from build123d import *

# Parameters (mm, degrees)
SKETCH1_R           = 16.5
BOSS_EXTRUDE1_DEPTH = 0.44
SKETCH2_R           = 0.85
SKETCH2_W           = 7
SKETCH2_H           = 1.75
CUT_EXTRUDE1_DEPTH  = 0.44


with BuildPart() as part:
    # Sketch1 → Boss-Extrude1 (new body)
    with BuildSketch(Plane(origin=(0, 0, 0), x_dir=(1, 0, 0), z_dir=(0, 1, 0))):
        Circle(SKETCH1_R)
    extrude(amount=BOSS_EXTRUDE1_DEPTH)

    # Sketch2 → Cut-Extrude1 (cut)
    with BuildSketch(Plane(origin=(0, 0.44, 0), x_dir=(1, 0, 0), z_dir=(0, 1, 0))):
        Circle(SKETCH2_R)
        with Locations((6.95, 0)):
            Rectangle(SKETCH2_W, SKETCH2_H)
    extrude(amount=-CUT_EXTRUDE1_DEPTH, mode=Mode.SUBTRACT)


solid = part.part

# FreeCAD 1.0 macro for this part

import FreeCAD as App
import Part
import Sketcher

V = App.Vector
Q = App.Units.Quantity

doc = App.newDocument("Part")
body = doc.addObject("PartDesign::Body", "Body")

# Sketch on XZ plane
sketch1 = doc.addObject("Sketcher::SketchObject", "Sketch")
body.addObject(sketch1)
sketch1.AttachmentSupport = (doc.XZ_Plane, [""])
sketch1.MapMode = "FlatFace"
sketch1.addGeometry(Part.Circle(V(0, 0, 0), V(0, 0, 1), 16), False)
sketch1.addConstraint(Sketcher.Constraint("Coincident", 0, 3, -1, 1))
sketch1.addConstraint(Sketcher.Constraint("Diameter", 0, Q("33 mm")))
pad1 = doc.addObject("PartDesign::Pad", "Pad")
body.addObject(pad1)
pad1.Profile = sketch1
pad1.Length = 0.44
pad1.Reversed = True

# Sketch on XZ plane
sketch2 = doc.addObject("Sketcher::SketchObject", "Sketch001")
body.addObject(sketch2)
sketch2.AttachmentSupport = (doc.XZ_Plane, [""])
sketch2.MapMode = "FlatFace"
sketch2.AttachmentOffset = App.Placement(V(0, 0, -0.44), App.Rotation())
sketch2.addGeometry(Part.Circle(V(0, 0, 0), V(0, 0, 1), 0.8), False)
sketch2.addGeometry(Part.LineSegment(V(3.5, -0.9, 0), V(3.5, 0.9, 0)), False)
sketch2.addGeometry(Part.LineSegment(V(3.5, 0.9, 0), V(10.4, 0.9, 0)), False)
sketch2.addGeometry(Part.LineSegment(V(10.4, 0.9, 0), V(10.4, -0.9, 0)), False)
sketch2.addGeometry(Part.LineSegment(V(10.4, -0.9, 0), V(3.5, -0.9, 0)), False)
sketch2.addConstraint(Sketcher.Constraint("Coincident", 1, 2, 2, 1))
sketch2.addConstraint(Sketcher.Constraint("Coincident", 2, 2, 3, 1))
sketch2.addConstraint(Sketcher.Constraint("Coincident", 3, 2, 4, 1))
sketch2.addConstraint(Sketcher.Constraint("Coincident", 4, 2, 1, 1))
sketch2.addConstraint(Sketcher.Constraint("Vertical", 1))
sketch2.addConstraint(Sketcher.Constraint("Horizontal", 2))
sketch2.addConstraint(Sketcher.Constraint("Vertical", 3))
sketch2.addConstraint(Sketcher.Constraint("Horizontal", 4))
sketch2.addConstraint(Sketcher.Constraint("Coincident", 0, 3, -1, 1))
sketch2.addConstraint(Sketcher.Constraint("Diameter", 0, Q("1.7 mm")))
sketch2.addConstraint(Sketcher.Constraint("DistanceX", 2, 1, 2, 2, Q("7 mm")))
sketch2.addConstraint(Sketcher.Constraint("DistanceY", 1, 1, 1, 2, Q("1.75 mm")))
sketch2.addConstraint(Sketcher.Constraint("DistanceX", -1, 1, 1, 2, Q("3.45 mm")))
sketch2.addConstraint(Sketcher.Constraint("DistanceY", -1, 1, 1, 2, Q("0.875 mm")))
pocket1 = doc.addObject("PartDesign::Pocket", "Pocket")
body.addObject(pocket1)
pocket1.Profile = sketch2
pocket1.Length = 0.44
pocket1.Reversed = True

doc.recompute()
